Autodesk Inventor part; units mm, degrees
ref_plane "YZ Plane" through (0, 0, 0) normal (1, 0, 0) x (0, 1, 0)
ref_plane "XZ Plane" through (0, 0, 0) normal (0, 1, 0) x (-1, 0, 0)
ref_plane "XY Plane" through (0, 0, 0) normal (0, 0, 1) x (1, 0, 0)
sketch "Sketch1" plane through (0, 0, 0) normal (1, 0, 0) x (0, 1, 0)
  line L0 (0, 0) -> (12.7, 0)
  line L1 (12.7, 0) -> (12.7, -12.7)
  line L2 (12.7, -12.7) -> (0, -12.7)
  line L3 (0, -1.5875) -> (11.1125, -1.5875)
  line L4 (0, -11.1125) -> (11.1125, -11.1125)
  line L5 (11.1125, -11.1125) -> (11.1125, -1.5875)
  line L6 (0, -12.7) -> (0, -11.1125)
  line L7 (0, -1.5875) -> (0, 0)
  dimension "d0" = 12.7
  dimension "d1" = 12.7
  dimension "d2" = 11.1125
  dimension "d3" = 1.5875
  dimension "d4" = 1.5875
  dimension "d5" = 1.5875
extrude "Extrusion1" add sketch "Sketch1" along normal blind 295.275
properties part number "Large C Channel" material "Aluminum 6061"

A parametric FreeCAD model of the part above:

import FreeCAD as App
import Part
import Sketcher
Q = App.Units.Quantity

doc = App.newDocument("Part")
body = doc.addObject("PartDesign::Body", "Body")

# Sketch on YZ plane
sketch1 = doc.addObject("Sketcher::SketchObject", "Sketch")
body.addObject(sketch1)
sketch1.AttachmentSupport = (doc.YZ_Plane, [""])
sketch1.MapMode = "FlatFace"
sketch1.addGeometry([
    Part.LineSegment(App.Vector(12.7, 0, 0), App.Vector(0, 0, 0)),  # 0
    Part.LineSegment(App.Vector(0, 0, 0), App.Vector(0, -1.6, 0)),  # 1
    Part.LineSegment(App.Vector(0, -1.6, 0), App.Vector(11.1, -1.6, 0)),  # 2
    Part.LineSegment(App.Vector(11.1, -1.6, 0), App.Vector(11.1, -11.1, 0)),  # 3
    Part.LineSegment(App.Vector(11.1, -11.1, 0), App.Vector(0, -11.1, 0)),  # 4
    Part.LineSegment(App.Vector(0, -11.1, 0), App.Vector(0, -12.7, 0)),  # 5
    Part.LineSegment(App.Vector(0, -12.7, 0), App.Vector(12.7, -12.7, 0)),  # 6
    Part.LineSegment(App.Vector(12.7, -12.7, 0), App.Vector(12.7, 0, 0)),  # 7
], False)
sketch1.addConstraint([
    Sketcher.Constraint("Coincident", 0, 2, 1, 1),
    Sketcher.Constraint("Coincident", 1, 2, 2, 1),
    Sketcher.Constraint("Coincident", 2, 2, 3, 1),
    Sketcher.Constraint("Coincident", 3, 2, 4, 1),
    Sketcher.Constraint("Coincident", 4, 2, 5, 1),
    Sketcher.Constraint("Coincident", 5, 2, 6, 1),
    Sketcher.Constraint("Coincident", 6, 2, 7, 1),
    Sketcher.Constraint("Coincident", 7, 2, 0, 1),
    Sketcher.Constraint("Horizontal", 0),
    Sketcher.Constraint("Vertical", 1),
    Sketcher.Constraint("Horizontal", 2),
    Sketcher.Constraint("Vertical", 3),
    Sketcher.Constraint("Horizontal", 4),
    Sketcher.Constraint("Vertical", 5),
    Sketcher.Constraint("Horizontal", 6),
    Sketcher.Constraint("Vertical", 7),
    Sketcher.Constraint("Coincident", 0, 2, -1, 1),
    Sketcher.Constraint("PointOnObject", 4, 2, -2),
    Sketcher.Constraint("Equal", 1, 5),
    Sketcher.Constraint("Equal", 6, 7),
    Sketcher.Constraint("DistanceX", 0, 2, 0, 1, Q("0.5 in")),
    Sketcher.Constraint("DistanceX", 2, 1, 2, 2, Q("0.4375 in")),
    Sketcher.Constraint("DistanceY", 1, 2, 1, 1, Q("0.0625 in")),
])
pad1 = doc.addObject("PartDesign::Pad", "Pad")
body.addObject(pad1)
pad1.Profile = sketch1
pad1.Length = Q("11.625 in")

doc.recompute()
